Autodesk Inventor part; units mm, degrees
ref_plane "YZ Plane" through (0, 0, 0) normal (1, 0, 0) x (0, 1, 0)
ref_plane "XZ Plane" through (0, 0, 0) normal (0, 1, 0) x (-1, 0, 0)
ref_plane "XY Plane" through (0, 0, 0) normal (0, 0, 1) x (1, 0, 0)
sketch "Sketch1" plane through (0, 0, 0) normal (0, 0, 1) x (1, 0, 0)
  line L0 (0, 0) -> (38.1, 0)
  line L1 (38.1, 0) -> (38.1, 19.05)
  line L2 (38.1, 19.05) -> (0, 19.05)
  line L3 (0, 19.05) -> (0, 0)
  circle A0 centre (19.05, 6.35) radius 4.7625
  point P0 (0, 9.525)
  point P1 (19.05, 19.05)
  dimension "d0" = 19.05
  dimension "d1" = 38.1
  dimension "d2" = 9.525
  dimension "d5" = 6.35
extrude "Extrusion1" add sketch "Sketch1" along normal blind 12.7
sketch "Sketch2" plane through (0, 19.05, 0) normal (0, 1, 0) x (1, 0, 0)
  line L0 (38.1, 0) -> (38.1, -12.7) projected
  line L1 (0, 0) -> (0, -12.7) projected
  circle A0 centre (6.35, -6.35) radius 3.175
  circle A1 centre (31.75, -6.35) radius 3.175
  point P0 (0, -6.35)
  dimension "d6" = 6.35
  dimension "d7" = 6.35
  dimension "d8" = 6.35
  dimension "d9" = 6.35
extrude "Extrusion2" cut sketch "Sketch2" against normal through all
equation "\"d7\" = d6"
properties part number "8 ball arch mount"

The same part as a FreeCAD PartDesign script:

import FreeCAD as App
import Part
import Sketcher

V = App.Vector
Q = App.Units.Quantity


def add_polygon(sketch, points):
    """Adds a closed chain of lines whose ends are joined by coincident constraints."""
    first, n = sketch.GeometryCount, len(points)
    for a, b in zip(points, points[1:] + points[:1]):
        sketch.addGeometry(Part.LineSegment(App.Vector(*a, 0), App.Vector(*b, 0)), False)
    for i in range(n):
        sketch.addConstraint(Sketcher.Constraint("Coincident", first + i, 2, first + (i + 1) % n, 1))

doc = App.newDocument("Part")
body = doc.addObject("PartDesign::Body", "Body")

# Sketch on XY plane
sketch1 = body.newObject("Sketcher::SketchObject", "Sketch")
sketch1.AttachmentSupport = (doc.getObject("XY_Plane"), [""])
sketch1.MapMode = "FlatFace"
add_polygon(sketch1, [(0, 19.05), (0, 0), (38.1, 0), (38.1, 19.05)])  # lines 0-3
sketch1.addGeometry(Part.Circle(V(19.05, 6.35, 0), V(0, 0, 1), 4.7625), False)  # 4
sketch1.addConstraint([
    Sketcher.Constraint("Vertical", 0),
    Sketcher.Constraint("Horizontal", 1),
    Sketcher.Constraint("Vertical", 2),
    Sketcher.Constraint("Horizontal", 3),
    Sketcher.Constraint("Coincident", 0, 2, -1, 1),
    Sketcher.Constraint("Diameter", 4, Q("0.375 in")),
    Sketcher.Constraint("DistanceX", 1, 1, 1, 2, Q("1.5 in")),
    Sketcher.Constraint("DistanceY", 0, 2, 0, 1, Q("0.75 in")),
    Sketcher.Constraint("DistanceX", -1, 1, 4, 3, Q("0.75 in")),
    Sketcher.Constraint("DistanceY", -1, 1, 4, 3, Q("0.25 in")),
])
pad1 = body.newObject("PartDesign::Pad", "Pad")
pad1.Profile = sketch1
pad1.Length = Q("0.5 in")

# Sketch on XZ plane
sketch2 = body.newObject("Sketcher::SketchObject", "Sketch001")
sketch2.AttachmentSupport = (doc.getObject("XZ_Plane"), [""])
sketch2.MapMode = "FlatFace"
sketch2.AttachmentOffset = App.Placement(V(0, 0, -0.75 * 25.4), App.Rotation())
sketch2.addGeometry([
    Part.Circle(V(6.35, 6.35, 0), V(0, 0, 1), 3.175),
    Part.Circle(V(31.75, 6.35, 0), V(0, 0, 1), 3.175),
], False)
sketch2.addConstraint([
    Sketcher.Constraint("Equal", 0, 1),
    Sketcher.Constraint("Horizontal", 0, 3, 1, 3),
    Sketcher.Constraint("Diameter", 0, Q("0.25 in")),
    Sketcher.Constraint("DistanceX", -1, 1, 0, 3, Q("0.25 in")),
    Sketcher.Constraint("DistanceY", -1, 1, 0, 3, Q("0.25 in")),
    Sketcher.Constraint("DistanceX", 0, 3, 1, 3, Q("1 in")),
])
pocket1 = body.newObject("PartDesign::Pocket", "Pocket")
pocket1.Profile = sketch2
pocket1.Type = "ThroughAll"
pocket1.Reversed = True

doc.recompute()
